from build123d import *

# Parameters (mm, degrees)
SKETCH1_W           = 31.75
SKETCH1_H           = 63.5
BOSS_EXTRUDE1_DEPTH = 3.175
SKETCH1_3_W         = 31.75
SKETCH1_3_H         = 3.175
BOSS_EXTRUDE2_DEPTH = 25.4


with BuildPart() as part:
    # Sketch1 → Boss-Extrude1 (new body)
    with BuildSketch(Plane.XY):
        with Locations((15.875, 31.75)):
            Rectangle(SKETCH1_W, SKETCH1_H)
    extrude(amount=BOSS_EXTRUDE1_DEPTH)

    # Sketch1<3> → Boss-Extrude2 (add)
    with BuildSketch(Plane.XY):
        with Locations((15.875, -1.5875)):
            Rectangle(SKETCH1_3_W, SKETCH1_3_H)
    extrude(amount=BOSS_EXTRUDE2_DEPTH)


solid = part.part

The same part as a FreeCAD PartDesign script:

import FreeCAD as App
import Part
import Sketcher
Q = App.Units.Quantity

doc = App.newDocument("Part")
body = doc.addObject("PartDesign::Body", "Body")

# Sketch on XY plane
sketch1 = doc.addObject("Sketcher::SketchObject", "Sketch")
body.addObject(sketch1)
sketch1.AttachmentSupport = (doc.XY_Plane, [""])
sketch1.MapMode = "FlatFace"
sketch1.addGeometry([
    Part.LineSegment(App.Vector(0, 64, 0), App.Vector(0, 0, 0)),
    Part.LineSegment(App.Vector(0, 0, 0), App.Vector(32, 0, 0)),
    Part.LineSegment(App.Vector(32, 0, 0), App.Vector(32, 64, 0)),
    Part.LineSegment(App.Vector(32, 64, 0), App.Vector(0, 64, 0)),
], False)
sketch1.addConstraint([
    Sketcher.Constraint("Coincident", 0, 2, 1, 1),
    Sketcher.Constraint("Coincident", 1, 2, 2, 1),
    Sketcher.Constraint("Coincident", 2, 2, 3, 1),
    Sketcher.Constraint("Coincident", 3, 2, 0, 1),
    Sketcher.Constraint("Vertical", 0),
    Sketcher.Constraint("Horizontal", 1),
    Sketcher.Constraint("Vertical", 2),
    Sketcher.Constraint("Horizontal", 3),
    Sketcher.Constraint("Coincident", 0, 2, -1, 1),
    Sketcher.Constraint("DistanceY", 0, 2, 0, 1, Q("2.5 in")),
    Sketcher.Constraint("DistanceX", 1, 1, 1, 2, Q("1.25 in")),
])
pad1 = doc.addObject("PartDesign::Pad", "Pad")
body.addObject(pad1)
pad1.Profile = sketch1
pad1.Length = Q("0.125 in")

# Sketch on XY plane
sketch2 = doc.addObject("Sketcher::SketchObject", "Sketch001")
body.addObject(sketch2)
sketch2.AttachmentSupport = (doc.XY_Plane, [""])
sketch2.MapMode = "FlatFace"
sketch2.addGeometry([
    Part.LineSegment(App.Vector(0, 0, 0), App.Vector(0, -3.2, 0)),
    Part.LineSegment(App.Vector(0, -3.2, 0), App.Vector(31.8, -3.2, 0)),
    Part.LineSegment(App.Vector(31.8, -3.2, 0), App.Vector(31.8, 0, 0)),
    Part.LineSegment(App.Vector(31.8, 0, 0), App.Vector(0, 0, 0)),
], False)
sketch2.addConstraint([
    Sketcher.Constraint("Coincident", 0, 2, 1, 1),
    Sketcher.Constraint("Coincident", 1, 2, 2, 1),
    Sketcher.Constraint("Coincident", 2, 2, 3, 1),
    Sketcher.Constraint("Coincident", 3, 2, 0, 1),
    Sketcher.Constraint("Vertical", 0),
    Sketcher.Constraint("Horizontal", 1),
    Sketcher.Constraint("Vertical", 2),
    Sketcher.Constraint("Horizontal", 3),
    Sketcher.Constraint("Coincident", 3, 2, -1, 1),
    Sketcher.Constraint("DistanceX", 1, 1, 1, 2, Q("1.25 in")),
    Sketcher.Constraint("DistanceY", 0, 2, 0, 1, Q("0.125 in")),
])
pad2 = doc.addObject("PartDesign::Pad", "Pad001")
body.addObject(pad2)
pad2.Profile = sketch2
pad2.Length = Q("1 in")

doc.recompute()
